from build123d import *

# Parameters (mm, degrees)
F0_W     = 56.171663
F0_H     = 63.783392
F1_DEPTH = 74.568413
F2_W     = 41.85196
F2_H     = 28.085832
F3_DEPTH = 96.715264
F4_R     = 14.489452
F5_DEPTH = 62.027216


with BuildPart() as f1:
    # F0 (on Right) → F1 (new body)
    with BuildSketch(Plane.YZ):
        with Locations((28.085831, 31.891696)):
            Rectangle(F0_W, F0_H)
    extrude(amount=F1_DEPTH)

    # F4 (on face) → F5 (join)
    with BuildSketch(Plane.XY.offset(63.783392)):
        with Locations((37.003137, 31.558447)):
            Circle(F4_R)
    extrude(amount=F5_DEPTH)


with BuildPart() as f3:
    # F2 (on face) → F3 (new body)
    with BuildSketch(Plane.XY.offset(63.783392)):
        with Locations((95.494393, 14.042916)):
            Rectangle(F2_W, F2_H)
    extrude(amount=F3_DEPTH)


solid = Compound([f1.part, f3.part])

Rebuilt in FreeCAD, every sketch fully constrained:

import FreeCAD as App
import Part
import Sketcher
from FreeCAD import Vector


def add_polygon(sketch, points):
    """Adds a closed chain of lines whose ends are joined by coincident constraints."""
    first, n = sketch.GeometryCount, len(points)
    for a, b in zip(points, points[1:] + points[:1]):
        sketch.addGeometry(Part.LineSegment(App.Vector(*a, 0), App.Vector(*b, 0)), False)
    for i in range(n):
        sketch.addConstraint(Sketcher.Constraint("Coincident", first + i, 2, first + (i + 1) % n, 1))

doc = App.newDocument("Part")
body = doc.addObject("PartDesign::Body", "Body")

# Sketch on YZ plane
sketch1 = doc.addObject("Sketcher::SketchObject", "Sketch")
body.addObject(sketch1)
sketch1.AttachmentSupport = (doc.YZ_Plane, [""])
sketch1.MapMode = "FlatFace"
add_polygon(sketch1, [(0, 63.783392), (0, 0), (56.171662, 0), (56.171662, 63.783392)])  # lines 0-3
sketch1.addConstraint([
    Sketcher.Constraint("Vertical", 0),
    Sketcher.Constraint("Horizontal", 1),
    Sketcher.Constraint("Vertical", 2),
    Sketcher.Constraint("Horizontal", 3),
    Sketcher.Constraint("Coincident", 0, 2, -1, 1),
    Sketcher.Constraint("DistanceX", 1, 1, 1, 2, 56.171663),
    Sketcher.Constraint("DistanceY", 0, 2, 0, 1, 63.783392),
])
pad1 = doc.addObject("PartDesign::Pad", "Pad")
body.addObject(pad1)
pad1.Profile = sketch1
pad1.Length = 74.568413

# Sketch on XY plane
sketch2 = doc.addObject("Sketcher::SketchObject", "Sketch001")
body.addObject(sketch2)
sketch2.AttachmentSupport = (doc.XY_Plane, [""])
sketch2.MapMode = "FlatFace"
sketch2.AttachmentOffset = App.Placement(Vector(0, 0, 63.783392), App.Rotation())
sketch2.addGeometry(Part.Circle(Vector(37.003137, 31.558447, 0), Vector(0, 0, 1), 14.489452), False)
sketch2.addConstraint([
    Sketcher.Constraint("Diameter", 0, 28.978904),
    Sketcher.Constraint("DistanceX", -1, 1, 0, 3, 37.003137),
    Sketcher.Constraint("DistanceY", -1, 1, 0, 3, 31.558447),
])
pad2 = doc.addObject("PartDesign::Pad", "Pad001")
body.addObject(pad2)
pad2.Profile = sketch2
pad2.Length = 62.027216
body2 = doc.addObject("PartDesign::Body", "Body001")

# Sketch on XY plane
sketch3 = doc.addObject("Sketcher::SketchObject", "Sketch002")
body2.addObject(sketch3)
sketch3.AttachmentSupport = (doc.getObject("XY_Plane001"), [""])
sketch3.MapMode = "FlatFace"
sketch3.AttachmentOffset = App.Placement(Vector(0, 0, 63.783392), App.Rotation())
add_polygon(sketch3, [(74.568413, 28.085832), (74.568413, 0), (116.420373, 0), (116.420373, 28.085832)])  # lines 0-3
sketch3.addConstraint([
    Sketcher.Constraint("Vertical", 0),
    Sketcher.Constraint("Horizontal", 1),
    Sketcher.Constraint("Vertical", 2),
    Sketcher.Constraint("Horizontal", 3),
    Sketcher.Constraint("PointOnObject", 0, 2, -1),
    Sketcher.Constraint("DistanceX", 1, 1, 1, 2, 41.85196),
    Sketcher.Constraint("DistanceY", 0, 2, 0, 1, 28.085832),
    Sketcher.Constraint("DistanceX", -1, 1, 0, 2, 74.568413),
])
pad3 = doc.addObject("PartDesign::Pad", "Pad002")
body2.addObject(pad3)
pad3.Profile = sketch3
pad3.Length = 96.715264

doc.recompute()
